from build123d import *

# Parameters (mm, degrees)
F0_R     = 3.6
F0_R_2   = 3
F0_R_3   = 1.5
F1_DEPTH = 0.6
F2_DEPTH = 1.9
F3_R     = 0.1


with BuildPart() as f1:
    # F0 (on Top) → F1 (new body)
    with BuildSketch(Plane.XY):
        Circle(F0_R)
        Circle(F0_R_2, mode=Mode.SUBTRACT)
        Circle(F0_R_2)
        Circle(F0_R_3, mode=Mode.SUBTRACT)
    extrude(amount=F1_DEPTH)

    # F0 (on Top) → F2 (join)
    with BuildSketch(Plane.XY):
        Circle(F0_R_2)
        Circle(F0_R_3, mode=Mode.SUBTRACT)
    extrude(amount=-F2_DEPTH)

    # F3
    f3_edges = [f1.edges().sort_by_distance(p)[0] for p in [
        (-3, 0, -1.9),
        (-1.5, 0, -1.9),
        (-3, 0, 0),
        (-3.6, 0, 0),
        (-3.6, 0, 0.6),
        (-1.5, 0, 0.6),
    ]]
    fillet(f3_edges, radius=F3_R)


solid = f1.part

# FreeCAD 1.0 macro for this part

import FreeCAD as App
import Part
import Sketcher

V = App.Vector


def edges_at(feature, points):
    """Names of the edges that pass closest to the given points."""
    edges = feature.Shape.Edges
    near = lambda p: min(range(len(edges)), key=lambda i: edges[i].distToShape(Part.Vertex(*p))[0])
    return sorted({f"Edge{near(p) + 1}" for p in points})

doc = App.newDocument("Part")
body = doc.addObject("PartDesign::Body", "Body")

sketch1 = body.newObject("Sketcher::SketchObject", "Sketch")
sketch1.AttachmentSupport = (doc.getObject("XY_Plane"), [""])
sketch1.MapMode = "FlatFace"
sketch1.addGeometry([
    Part.Circle(V(0, 0, 0), V(0, 0, 1), 3.6),
    Part.Circle(V(0, 0, 0), V(0, 0, 1), 1.5),
], False)
sketch1.addConstraint([
    Sketcher.Constraint("Coincident", 0, 3, -1, 1),
    Sketcher.Constraint("Coincident", 1, 3, -1, 1),
    Sketcher.Constraint("Diameter", 1, 3.0),
    Sketcher.Constraint("Diameter", 0, 7.2),
])
pad1 = body.newObject("PartDesign::Pad", "Pad")
pad1.Profile = sketch1
pad1.Length = 0.6

sketch2 = body.newObject("Sketcher::SketchObject", "Sketch001")
sketch2.AttachmentSupport = (doc.getObject("XY_Plane"), [""])
sketch2.MapMode = "FlatFace"
sketch2.addGeometry([
    Part.Circle(V(0, 0, 0), V(0, 0, 1), 3),
    Part.Circle(V(0, 0, 0), V(0, 0, 1), 1.5),
], False)
sketch2.addConstraint([
    Sketcher.Constraint("Coincident", 0, 3, -1, 1),
    Sketcher.Constraint("Coincident", 1, 3, -1, 1),
    Sketcher.Constraint("Diameter", 0, 6.0),
    Sketcher.Constraint("Diameter", 1, 3.0),
])
pad2 = body.newObject("PartDesign::Pad", "Pad001")
pad2.Profile = sketch2
pad2.Length = 1.9
pad2.Reversed = True
doc.recompute()

fillet = body.newObject("PartDesign::Fillet", "Fillet")
fillet.Base = (pad2, edges_at(pad2, [
    (-3, 0, -1.9),
    (-1.5, 0, -1.9),
    (-3, 0, 0),
    (-3.6, 0, 0),
    (-3.6, 0, 0.6),
    (-1.5, 0, 0.6),
]))
fillet.Radius = 0.1

doc.recompute()
